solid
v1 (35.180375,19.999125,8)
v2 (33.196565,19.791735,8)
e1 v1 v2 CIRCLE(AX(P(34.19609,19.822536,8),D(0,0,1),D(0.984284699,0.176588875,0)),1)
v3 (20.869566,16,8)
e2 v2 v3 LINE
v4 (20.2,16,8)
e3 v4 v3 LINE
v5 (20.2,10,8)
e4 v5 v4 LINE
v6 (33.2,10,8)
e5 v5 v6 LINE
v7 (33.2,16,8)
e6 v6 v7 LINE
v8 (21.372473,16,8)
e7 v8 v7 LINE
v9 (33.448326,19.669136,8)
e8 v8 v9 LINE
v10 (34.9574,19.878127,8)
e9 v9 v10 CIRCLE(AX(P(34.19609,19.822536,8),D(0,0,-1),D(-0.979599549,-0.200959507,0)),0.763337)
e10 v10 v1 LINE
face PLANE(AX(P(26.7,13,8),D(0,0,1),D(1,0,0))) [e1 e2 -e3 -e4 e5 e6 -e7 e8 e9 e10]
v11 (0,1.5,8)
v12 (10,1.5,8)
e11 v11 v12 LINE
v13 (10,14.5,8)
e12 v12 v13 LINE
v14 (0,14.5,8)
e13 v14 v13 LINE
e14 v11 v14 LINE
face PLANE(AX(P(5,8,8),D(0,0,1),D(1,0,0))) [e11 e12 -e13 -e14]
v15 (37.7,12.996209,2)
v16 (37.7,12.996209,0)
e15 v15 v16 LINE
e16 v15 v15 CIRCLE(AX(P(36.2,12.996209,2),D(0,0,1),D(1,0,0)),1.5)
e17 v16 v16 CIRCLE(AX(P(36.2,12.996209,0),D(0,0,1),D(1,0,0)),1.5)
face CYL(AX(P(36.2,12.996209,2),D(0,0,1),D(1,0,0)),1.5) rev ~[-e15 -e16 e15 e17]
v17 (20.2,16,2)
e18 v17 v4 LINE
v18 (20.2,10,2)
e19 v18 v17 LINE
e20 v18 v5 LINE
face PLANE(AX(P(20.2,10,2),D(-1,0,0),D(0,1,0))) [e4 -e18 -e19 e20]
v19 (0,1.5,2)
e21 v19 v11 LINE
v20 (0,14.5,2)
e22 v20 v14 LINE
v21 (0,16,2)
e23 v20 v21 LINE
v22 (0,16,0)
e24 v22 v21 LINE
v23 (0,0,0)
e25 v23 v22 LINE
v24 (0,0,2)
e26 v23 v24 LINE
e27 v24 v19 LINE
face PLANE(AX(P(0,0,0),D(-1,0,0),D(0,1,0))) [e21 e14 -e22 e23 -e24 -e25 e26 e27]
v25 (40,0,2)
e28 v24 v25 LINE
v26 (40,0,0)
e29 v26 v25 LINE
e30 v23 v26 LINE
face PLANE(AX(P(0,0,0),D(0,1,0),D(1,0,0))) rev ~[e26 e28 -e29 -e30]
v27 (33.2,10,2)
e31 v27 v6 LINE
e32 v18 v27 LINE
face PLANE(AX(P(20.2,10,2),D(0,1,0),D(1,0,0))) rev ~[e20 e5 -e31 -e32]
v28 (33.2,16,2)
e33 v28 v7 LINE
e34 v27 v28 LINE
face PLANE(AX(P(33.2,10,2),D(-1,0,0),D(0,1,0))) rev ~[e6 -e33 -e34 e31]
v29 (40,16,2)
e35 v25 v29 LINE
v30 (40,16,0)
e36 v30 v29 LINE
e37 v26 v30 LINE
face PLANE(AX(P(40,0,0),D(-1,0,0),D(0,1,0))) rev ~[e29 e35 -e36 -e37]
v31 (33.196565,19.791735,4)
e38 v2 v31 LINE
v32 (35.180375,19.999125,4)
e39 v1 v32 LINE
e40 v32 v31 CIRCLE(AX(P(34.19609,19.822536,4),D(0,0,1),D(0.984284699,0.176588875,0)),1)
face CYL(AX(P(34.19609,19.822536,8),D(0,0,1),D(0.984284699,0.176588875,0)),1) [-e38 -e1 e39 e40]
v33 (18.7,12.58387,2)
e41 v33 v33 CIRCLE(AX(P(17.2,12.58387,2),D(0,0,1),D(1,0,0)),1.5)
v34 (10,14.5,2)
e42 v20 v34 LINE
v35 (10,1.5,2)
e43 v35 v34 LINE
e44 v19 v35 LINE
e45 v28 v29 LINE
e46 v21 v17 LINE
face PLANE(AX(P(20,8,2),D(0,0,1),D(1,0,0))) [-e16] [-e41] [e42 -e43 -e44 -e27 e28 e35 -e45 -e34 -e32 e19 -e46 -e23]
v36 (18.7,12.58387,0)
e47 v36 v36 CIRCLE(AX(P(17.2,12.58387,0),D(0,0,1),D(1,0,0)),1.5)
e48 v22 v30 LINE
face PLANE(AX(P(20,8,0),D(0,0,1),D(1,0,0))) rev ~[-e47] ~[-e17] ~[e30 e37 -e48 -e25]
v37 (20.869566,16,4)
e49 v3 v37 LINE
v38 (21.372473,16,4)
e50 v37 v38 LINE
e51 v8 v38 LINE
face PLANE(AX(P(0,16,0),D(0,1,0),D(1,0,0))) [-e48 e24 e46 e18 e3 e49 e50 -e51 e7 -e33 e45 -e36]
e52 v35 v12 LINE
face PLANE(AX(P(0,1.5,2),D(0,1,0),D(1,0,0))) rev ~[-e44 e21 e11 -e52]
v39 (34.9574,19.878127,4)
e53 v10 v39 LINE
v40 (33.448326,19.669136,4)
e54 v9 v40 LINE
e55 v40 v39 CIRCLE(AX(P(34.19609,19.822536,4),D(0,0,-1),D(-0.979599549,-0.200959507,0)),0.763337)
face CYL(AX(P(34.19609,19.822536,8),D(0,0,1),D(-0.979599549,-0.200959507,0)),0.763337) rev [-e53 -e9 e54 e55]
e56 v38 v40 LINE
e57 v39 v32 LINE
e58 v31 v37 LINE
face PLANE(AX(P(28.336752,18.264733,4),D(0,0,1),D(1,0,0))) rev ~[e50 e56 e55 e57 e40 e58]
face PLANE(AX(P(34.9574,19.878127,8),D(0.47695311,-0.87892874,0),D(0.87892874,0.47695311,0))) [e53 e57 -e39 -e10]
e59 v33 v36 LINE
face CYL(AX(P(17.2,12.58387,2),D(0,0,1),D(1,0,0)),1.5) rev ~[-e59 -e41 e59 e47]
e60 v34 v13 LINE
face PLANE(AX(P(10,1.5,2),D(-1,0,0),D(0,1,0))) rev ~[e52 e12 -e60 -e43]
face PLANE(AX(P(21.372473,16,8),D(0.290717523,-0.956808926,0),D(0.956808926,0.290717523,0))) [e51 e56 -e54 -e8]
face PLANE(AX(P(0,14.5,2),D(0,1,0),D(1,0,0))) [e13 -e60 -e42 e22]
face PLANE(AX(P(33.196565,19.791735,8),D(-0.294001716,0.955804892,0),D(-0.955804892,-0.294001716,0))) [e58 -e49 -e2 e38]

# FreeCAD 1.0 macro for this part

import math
import FreeCAD as App
import Part
import Sketcher

V = App.Vector

doc = App.newDocument("Part")
body = doc.addObject("PartDesign::Body", "Body")

# Sketch on XY plane
sketch1 = doc.addObject("Sketcher::SketchObject", "Sketch")
body.addObject(sketch1)
sketch1.AttachmentSupport = (doc.XY_Plane, [""])
sketch1.MapMode = "FlatFace"
sketch1.addGeometry([
    Part.LineSegment(V(0, 16, 0), V(0, 0, 0)),
    Part.LineSegment(V(0, 0, 0), V(40, 0, 0)),
    Part.LineSegment(V(40, 0, 0), V(40, 16, 0)),
    Part.LineSegment(V(40, 16, 0), V(0, 16, 0)),
], False)
sketch1.addConstraint([
    Sketcher.Constraint("Coincident", 0, 2, 1, 1),
    Sketcher.Constraint("Coincident", 1, 2, 2, 1),
    Sketcher.Constraint("Coincident", 2, 2, 3, 1),
    Sketcher.Constraint("Coincident", 3, 2, 0, 1),
    Sketcher.Constraint("Vertical", 0),
    Sketcher.Constraint("Horizontal", 1),
    Sketcher.Constraint("Vertical", 2),
    Sketcher.Constraint("Horizontal", 3),
    Sketcher.Constraint("Coincident", 0, 2, -1, 1),
    Sketcher.Constraint("DistanceX", 1, 1, 1, 2, 40.0),
    Sketcher.Constraint("DistanceY", 0, 2, 0, 1, 16.0),
])
pad1 = doc.addObject("PartDesign::Pad", "Pad")
body.addObject(pad1)
pad1.Profile = sketch1
pad1.Length = 2

# Sketch on XY plane
sketch2 = doc.addObject("Sketcher::SketchObject", "Sketch001")
body.addObject(sketch2)
sketch2.AttachmentSupport = (doc.XY_Plane, [""])
sketch2.MapMode = "FlatFace"
sketch2.AttachmentOffset = App.Placement(V(0, 0, 2), App.Rotation())
sketch2.addGeometry([
    Part.LineSegment(V(0, 14, 0), V(0, 2, 0)),  # 0
    Part.LineSegment(V(0, 2, 0), V(10, 2, 0)),  # 1
    Part.LineSegment(V(10, 2, 0), V(10, 14, 0)),  # 2
    Part.LineSegment(V(10, 14, 0), V(0, 14, 0)),  # 3
    Part.LineSegment(V(20, 16, 0), V(20, 10, 0)),  # 4
    Part.LineSegment(V(20, 10, 0), V(33, 10, 0)),  # 5
    Part.LineSegment(V(33, 10, 0), V(33, 16, 0)),  # 6
    Part.LineSegment(V(33, 16, 0), V(20, 16, 0)),  # 7
], False)
sketch2.addConstraint([
    Sketcher.Constraint("Coincident", 0, 2, 1, 1),
    Sketcher.Constraint("Coincident", 1, 2, 2, 1),
    Sketcher.Constraint("Coincident", 2, 2, 3, 1),
    Sketcher.Constraint("Coincident", 3, 2, 0, 1),
    Sketcher.Constraint("Coincident", 4, 2, 5, 1),
    Sketcher.Constraint("Coincident", 5, 2, 6, 1),
    Sketcher.Constraint("Coincident", 6, 2, 7, 1),
    Sketcher.Constraint("Coincident", 7, 2, 4, 1),
    Sketcher.Constraint("Vertical", 0),
    Sketcher.Constraint("Horizontal", 1),
    Sketcher.Constraint("Vertical", 2),
    Sketcher.Constraint("Horizontal", 3),
    Sketcher.Constraint("Vertical", 4),
    Sketcher.Constraint("Horizontal", 5),
    Sketcher.Constraint("Vertical", 6),
    Sketcher.Constraint("Horizontal", 7),
    Sketcher.Constraint("PointOnObject", 0, 2, -2),
    Sketcher.Constraint("Equal", 7, 0),
    Sketcher.Constraint("DistanceX", 1, 1, 1, 2, 10.0),
    Sketcher.Constraint("DistanceX", 5, 1, 5, 2, 13.0),
    Sketcher.Constraint("DistanceY", 4, 2, 4, 1, 6.0),
    Sketcher.Constraint("DistanceY", -1, 1, 4, 2, 10.0),
    Sketcher.Constraint("DistanceY", -1, 1, 0, 2, 1.5),
    Sketcher.Constraint("DistanceX", -1, 1, 4, 2, 20.2),
])
pad2 = doc.addObject("PartDesign::Pad", "Pad001")
body.addObject(pad2)
pad2.Profile = sketch2
pad2.Length = 6

# Sketch on XY plane
sketch3 = doc.addObject("Sketcher::SketchObject", "Sketch002")
body.addObject(sketch3)
sketch3.AttachmentSupport = (doc.XY_Plane, [""])
sketch3.MapMode = "FlatFace"
sketch3.AttachmentOffset = App.Placement(V(0, 0, 2), App.Rotation())
sketch3.addGeometry([
    Part.Circle(V(17.2, 12.6, 0), V(0, 0, 1), 1.5),
    Part.Circle(V(36.2, 13, 0), V(0, 0, 1), 1.5),
], False)
sketch3.addConstraint([
    Sketcher.Constraint("Equal", 0, 1),
    Sketcher.Constraint("Diameter", 0, 3.0),
    Sketcher.Constraint("DistanceX", 0, 3, 1, 3, 19.0),
    Sketcher.Constraint("DistanceX", -1, 1, 0, 3, 17.2),
    Sketcher.Constraint("DistanceY", -1, 1, 0, 3, 12.58387),
    Sketcher.Constraint("DistanceY", -1, 1, 1, 3, 12.996209),
])
pocket1 = doc.addObject("PartDesign::Pocket", "Pocket")
body.addObject(pocket1)
pocket1.Profile = sketch3
pocket1.Length = 25

# Sketch on XY plane
sketch4 = doc.addObject("Sketcher::SketchObject", "Sketch003")
body.addObject(sketch4)
sketch4.AttachmentSupport = (doc.XY_Plane, [""])
sketch4.MapMode = "FlatFace"
sketch4.AttachmentOffset = App.Placement(V(0, 0, 8), App.Rotation())
sketch4.addGeometry([
    Part.LineSegment(V(33.2, 19.79, 0), V(20.87, 16, 0)),  # 0
    Part.LineSegment(V(20.87, 16, 0), V(21.37, 16, 0)),  # 1
    Part.LineSegment(V(21.37, 16, 0), V(33.45, 19.67, 0)),  # 2
    Part.ArcOfCircle(Part.Circle(V(34.2, 19.82, 0), V(0, 0, 1), 0.76), math.radians(4), math.radians(192)),  # 3
    Part.LineSegment(V(34.96, 19.88, 0), V(35.18, 20, 0)),  # 4
    Part.ArcOfCircle(Part.Circle(V(34.2, 19.82, 0), V(0, 0, 1), 1), math.radians(10), math.radians(182)),  # 5
], False)
sketch4.addConstraint([
    Sketcher.Constraint("Coincident", 0, 2, 1, 1),
    Sketcher.Constraint("Coincident", 1, 2, 2, 1),
    Sketcher.Constraint("Coincident", 2, 2, 3, 2),
    Sketcher.Constraint("Coincident", 3, 1, 4, 1),
    Sketcher.Constraint("Coincident", 4, 2, 5, 1),
    Sketcher.Constraint("Coincident", 5, 2, 0, 1),
    Sketcher.Constraint("Horizontal", 1),
    Sketcher.Constraint("Coincident", 5, 3, 3, 3),
    Sketcher.Constraint("Radius", 5, 1.0),
    Sketcher.Constraint("DistanceY", -1, 1, 0, 2, 16.0),
    Sketcher.Constraint("Radius", 3, 0.763337),
    Sketcher.Constraint("DistanceY", 3, 1, 4, 2, 0.120998),
    Sketcher.Constraint("DistanceX", -1, 1, 3, 1, 34.9574),
    Sketcher.Constraint("DistanceY", 2, 2, 3, 3, 0.1534),
    Sketcher.Constraint("DistanceX", 1, 2, 4, 2, 13.807902),
    Sketcher.Constraint("DistanceY", 2, 2, 5, 2, 0.122599),
    Sketcher.Constraint("Distance", 4, 0.25369),
    Sketcher.Constraint("DistanceX", 1, 1, 1, 2, 0.502907),
    Sketcher.Constraint("Distance", 0, 12.896983),
])
pad3 = doc.addObject("PartDesign::Pad", "Pad002")
body.addObject(pad3)
pad3.Profile = sketch4
pad3.Length = 4
pad3.Reversed = True

doc.recompute()
